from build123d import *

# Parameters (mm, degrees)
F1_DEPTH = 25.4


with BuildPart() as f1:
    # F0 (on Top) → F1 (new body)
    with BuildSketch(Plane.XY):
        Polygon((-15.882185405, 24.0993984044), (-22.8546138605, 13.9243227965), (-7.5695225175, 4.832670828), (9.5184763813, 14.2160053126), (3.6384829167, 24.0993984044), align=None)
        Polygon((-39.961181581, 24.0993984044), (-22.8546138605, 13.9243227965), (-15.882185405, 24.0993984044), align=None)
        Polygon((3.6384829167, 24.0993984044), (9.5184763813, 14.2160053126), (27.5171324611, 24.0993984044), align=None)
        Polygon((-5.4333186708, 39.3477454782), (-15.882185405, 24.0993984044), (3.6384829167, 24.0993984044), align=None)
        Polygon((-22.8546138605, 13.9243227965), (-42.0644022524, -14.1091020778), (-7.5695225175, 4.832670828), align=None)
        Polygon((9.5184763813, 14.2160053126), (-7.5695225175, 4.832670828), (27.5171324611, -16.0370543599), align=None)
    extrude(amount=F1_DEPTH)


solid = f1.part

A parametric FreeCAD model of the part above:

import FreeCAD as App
import Part
import Sketcher
from FreeCAD import Vector


def add_polygon(sketch, points):
    """Adds a closed chain of lines whose ends are joined by coincident constraints."""
    first, n = sketch.GeometryCount, len(points)
    for a, b in zip(points, points[1:] + points[:1]):
        sketch.addGeometry(Part.LineSegment(App.Vector(*a, 0), App.Vector(*b, 0)), False)
    for i in range(n):
        sketch.addConstraint(Sketcher.Constraint("Coincident", first + i, 2, first + (i + 1) % n, 1))

doc = App.newDocument("Part")
params = doc.addObject("Spreadsheet::Sheet", "Params")
for row, (alias, value) in enumerate([
    ("pad1_length", "1 in"),
], start=1):
    params.set(f"A{row}", alias)
    params.set(f"B{row}", "=" + value)
    params.setAlias(f"B{row}", alias)

body = doc.addObject("PartDesign::Body", "Body")

sketch1 = doc.addObject("Sketcher::SketchObject", "Sketch")
body.addObject(sketch1)
sketch1.AttachmentSupport = (doc.XY_Plane, [""])
sketch1.MapMode = "FlatFace"
add_polygon(sketch1, [(10, 14), (28, 24), (4, 24), (-5, 39), (-16, 24), (-40, 24), (-23, 14), (-42, -14), (-8, 5), (28, -16)])
sketch1.addConstraint([
    Sketcher.Constraint("Horizontal", 1),
    Sketcher.Constraint("Horizontal", 4),
    Sketcher.Constraint("Parallel", 3, 6),
    Sketcher.Constraint("Parallel", 0, 7),
    Sketcher.Constraint("Parallel", 5, 8),
    Sketcher.Constraint("Parallel", 2, 9),
    Sketcher.Constraint("Horizontal", 1, 2, 3, 2),
    Sketcher.Constraint("Vertical", 0, 2, 8, 2),
    Sketcher.Constraint("DistanceX", 1, 2, 1, 1, 23.87865),
    Sketcher.Constraint("DistanceY", -1, 1, 0, 2, 24.099398),
    Sketcher.Constraint("DistanceX", 2, 2, 1, 2, 9.071802),
    Sketcher.Constraint("DistanceY", 6, 2, 4, 2, 38.2085),
    Sketcher.Constraint("DistanceX", 7, 2, 9, 2, 17.087999),
    Sketcher.Constraint("Distance", 5, 19.90394),
    Sketcher.Constraint("Distance", 9, 35.202262),
    Sketcher.Constraint("DistanceX", 4, 2, 4, 1, 24.078996),
    Sketcher.Constraint("DistanceX", 2, 2, -1, 1, 5.433319),
    Sketcher.Constraint("DistanceX", 4, 2, -1, 1, 39.961182),
    Sketcher.Constraint("DistanceY", -1, 1, 7, 2, 4.832671),
    Sketcher.Constraint("DistanceX", 5, 2, 3, 2, 6.972428),
])
pad1 = doc.addObject("PartDesign::Pad", "Pad")
body.addObject(pad1)
pad1.Profile = sketch1
pad1.setExpression("Length", "Params.pad1_length")

doc.recompute()
